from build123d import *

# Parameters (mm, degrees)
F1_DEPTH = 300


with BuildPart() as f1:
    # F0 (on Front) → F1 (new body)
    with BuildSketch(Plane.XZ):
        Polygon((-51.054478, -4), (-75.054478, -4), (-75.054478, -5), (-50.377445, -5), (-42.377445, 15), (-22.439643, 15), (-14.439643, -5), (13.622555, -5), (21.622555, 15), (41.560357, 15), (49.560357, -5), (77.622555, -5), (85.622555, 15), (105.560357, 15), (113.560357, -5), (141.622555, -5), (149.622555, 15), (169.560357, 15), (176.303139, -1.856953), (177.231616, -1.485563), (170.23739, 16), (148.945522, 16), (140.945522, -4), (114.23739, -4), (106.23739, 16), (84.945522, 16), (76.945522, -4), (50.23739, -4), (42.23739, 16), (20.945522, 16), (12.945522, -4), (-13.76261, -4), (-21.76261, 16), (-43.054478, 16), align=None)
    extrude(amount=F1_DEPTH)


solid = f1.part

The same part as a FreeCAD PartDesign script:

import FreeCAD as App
import Part
import Sketcher


def add_polygon(sketch, points):
    """Adds a closed chain of lines whose ends are joined by coincident constraints."""
    first, n = sketch.GeometryCount, len(points)
    for a, b in zip(points, points[1:] + points[:1]):
        sketch.addGeometry(Part.LineSegment(App.Vector(*a, 0), App.Vector(*b, 0)), False)
    for i in range(n):
        sketch.addConstraint(Sketcher.Constraint("Coincident", first + i, 2, first + (i + 1) % n, 1))

doc = App.newDocument("Part")
params = doc.addObject("Spreadsheet::Sheet", "Params")
for row, (alias, value) in enumerate([
    ("sketch1_width", "24 mm"),
    ("sketch1_height", "1 mm"),
    ("sketch1_length", "1 mm"),
    ("pad1_length", "300 mm"),
], start=1):
    params.set(f"A{row}", alias)
    params.set(f"B{row}", "=" + value)
    params.setAlias(f"B{row}", alias)

body = doc.addObject("PartDesign::Body", "Body")

# Sketch on XZ plane
sketch1 = doc.addObject("Sketcher::SketchObject", "Sketch")
body.addObject(sketch1)
sketch1.AttachmentSupport = (doc.XZ_Plane, [""])
sketch1.MapMode = "FlatFace"
add_polygon(sketch1, [(-51.054478, -4), (-75.054478, -4), (-75.054478, -5), (-50.377445, -5), (-42.377445, 15), (-22.439643, 15), (-14.439643, -5), (13.622555, -5), (21.622555, 15), (41.560357, 15), (49.560357, -5), (77.622555, -5), (85.622555, 15), (105.560357, 15), (113.560357, -5), (141.622555, -5), (149.622555, 15), (169.560357, 15), (176.303139, -1.856953), (177.231616, -1.485563), (170.23739, 16), (148.945522, 16), (140.945522, -4), (114.23739, -4), (106.23739, 16), (84.945522, 16), (76.945522, -4), (50.23739, -4), (42.23739, 16), (20.945522, 16), (12.945522, -4), (-13.76261, -4), (-21.76261, 16), (-43.054478, 16)])  # lines 0-33
sketch1.addConstraint(Sketcher.Constraint("Horizontal", 0))
sketch1.addConstraint(Sketcher.Constraint("Vertical", 1))
sketch1.addConstraint(Sketcher.Constraint("Horizontal", 2))
sketch1.addConstraint(Sketcher.Constraint("Horizontal", 4))
sketch1.addConstraint(Sketcher.Constraint("Horizontal", 6))
sketch1.addConstraint(Sketcher.Constraint("Horizontal", 8))
sketch1.addConstraint(Sketcher.Constraint("Horizontal", 10))
sketch1.addConstraint(Sketcher.Constraint("Horizontal", 12))
sketch1.addConstraint(Sketcher.Constraint("Horizontal", 14))
sketch1.addConstraint(Sketcher.Constraint("Horizontal", 16))
sketch1.addConstraint(Sketcher.Constraint("Horizontal", 20))
sketch1.addConstraint(Sketcher.Constraint("Horizontal", 22))
sketch1.addConstraint(Sketcher.Constraint("Horizontal", 24))
sketch1.addConstraint(Sketcher.Constraint("Horizontal", 26))
sketch1.addConstraint(Sketcher.Constraint("Horizontal", 28))
sketch1.addConstraint(Sketcher.Constraint("Horizontal", 30))
sketch1.addConstraint(Sketcher.Constraint("Horizontal", 32))
sketch1.addConstraint(Sketcher.Constraint("Parallel", 3, 7))
sketch1.addConstraint(Sketcher.Constraint("Parallel", 5, 9))
sketch1.addConstraint(Sketcher.Constraint("Parallel", 7, 11))
sketch1.addConstraint(Sketcher.Constraint("Parallel", 9, 13))
sketch1.addConstraint(Sketcher.Constraint("Parallel", 11, 15))
sketch1.addConstraint(Sketcher.Constraint("Parallel", 13, 17))
sketch1.addConstraint(Sketcher.Constraint("Perpendicular", 17, 18))
sketch1.addConstraint(Sketcher.Constraint("Perpendicular", 18, 19))
sketch1.addConstraint(Sketcher.Constraint("Parallel", 15, 21))
sketch1.addConstraint(Sketcher.Constraint("Parallel", 19, 23))
sketch1.addConstraint(Sketcher.Constraint("Parallel", 21, 25))
sketch1.addConstraint(Sketcher.Constraint("Parallel", 23, 27))
sketch1.addConstraint(Sketcher.Constraint("Parallel", 25, 29))
sketch1.addConstraint(Sketcher.Constraint("Parallel", 27, 31))
sketch1.addConstraint(Sketcher.Constraint("Parallel", 29, 33))
sketch1.addConstraint(Sketcher.Constraint("Horizontal", 2, 2, 5, 2))
sketch1.addConstraint(Sketcher.Constraint("Horizontal", 4, 2, 7, 2))
sketch1.addConstraint(Sketcher.Constraint("Horizontal", 6, 2, 9, 2))
sketch1.addConstraint(Sketcher.Constraint("Horizontal", 8, 2, 11, 2))
sketch1.addConstraint(Sketcher.Constraint("Horizontal", 10, 2, 13, 2))
sketch1.addConstraint(Sketcher.Constraint("Horizontal", 12, 2, 15, 2))
sketch1.addConstraint(Sketcher.Constraint("Horizontal", 0, 2, 21, 2))
sketch1.addConstraint(Sketcher.Constraint("Horizontal", 20, 2, 23, 2))
sketch1.addConstraint(Sketcher.Constraint("Horizontal", 22, 2, 25, 2))
sketch1.addConstraint(Sketcher.Constraint("Horizontal", 24, 2, 27, 2))
sketch1.addConstraint(Sketcher.Constraint("Horizontal", 26, 2, 29, 2))
sketch1.addConstraint(Sketcher.Constraint("Horizontal", 28, 2, 31, 2))
sketch1.addConstraint(Sketcher.Constraint("Equal", 4, 8))
sketch1.addConstraint(Sketcher.Constraint("Equal", 6, 10))
sketch1.addConstraint(Sketcher.Constraint("Equal", 8, 12))
sketch1.addConstraint(Sketcher.Constraint("Equal", 10, 14))
sketch1.addConstraint(Sketcher.Constraint("Equal", 12, 16))
sketch1.addConstraint(Sketcher.Constraint("Equal", 20, 24))
sketch1.addConstraint(Sketcher.Constraint("Equal", 22, 26))
sketch1.addConstraint(Sketcher.Constraint("Equal", 24, 28))
sketch1.addConstraint(Sketcher.Constraint("Equal", 26, 30))
sketch1.addConstraint(Sketcher.Constraint("Equal", 28, 32))
sketch1.addConstraint(Sketcher.Constraint("Equal", 3, 5))
sketch1.addConstraint(Sketcher.Constraint("Equal", 15, 21))
sketch1.addConstraint(Sketcher.Constraint("DistanceX", 0, 2, 0, 1, 24.0))
sketch1.addConstraint(Sketcher.Constraint("DistanceY", 1, 2, 1, 1, 1.0))
sketch1.addConstraint(Sketcher.Constraint("Distance", 18, 1.0))
sketch1.addConstraint(Sketcher.Constraint("DistanceY", 0, 2, -1, 1, 4.0))
sketch1.addConstraint(Sketcher.Constraint("DistanceY", -1, 1, 3, 2, 15.0))
sketch1.addConstraint(Sketcher.Constraint("DistanceX", 2, 2, 3, 2, 8.0))
sketch1.addConstraint(Sketcher.Constraint("DistanceX", 3, 2, 6, 2, 56.0))
sketch1.addConstraint(Sketcher.Constraint("DistanceX", 6, 1, 6, 2, 28.062198))
sketch1.addConstraint(Sketcher.Constraint("DistanceX", 24, 2, 24, 1, 21.291868))
sketch1.addConstraint(Sketcher.Constraint("DistanceX", 26, 2, 26, 1, 26.708132))
sketch1.addConstraint(Sketcher.Constraint("DistanceX", 0, 2, -1, 1, 75.054478))
sketch1.addConstraint(Sketcher.Constraint("DistanceX", -1, 1, 17, 2, 176.303139))
sketch1.setExpression("Constraints[90]", "Params.sketch1_width")
sketch1.setExpression("Constraints[91]", "Params.sketch1_height")
sketch1.setExpression("Constraints[92]", "Params.sketch1_length")
pad1 = doc.addObject("PartDesign::Pad", "Pad")
body.addObject(pad1)
pad1.Profile = sketch1
pad1.setExpression("Length", "Params.pad1_length")

doc.recompute()
